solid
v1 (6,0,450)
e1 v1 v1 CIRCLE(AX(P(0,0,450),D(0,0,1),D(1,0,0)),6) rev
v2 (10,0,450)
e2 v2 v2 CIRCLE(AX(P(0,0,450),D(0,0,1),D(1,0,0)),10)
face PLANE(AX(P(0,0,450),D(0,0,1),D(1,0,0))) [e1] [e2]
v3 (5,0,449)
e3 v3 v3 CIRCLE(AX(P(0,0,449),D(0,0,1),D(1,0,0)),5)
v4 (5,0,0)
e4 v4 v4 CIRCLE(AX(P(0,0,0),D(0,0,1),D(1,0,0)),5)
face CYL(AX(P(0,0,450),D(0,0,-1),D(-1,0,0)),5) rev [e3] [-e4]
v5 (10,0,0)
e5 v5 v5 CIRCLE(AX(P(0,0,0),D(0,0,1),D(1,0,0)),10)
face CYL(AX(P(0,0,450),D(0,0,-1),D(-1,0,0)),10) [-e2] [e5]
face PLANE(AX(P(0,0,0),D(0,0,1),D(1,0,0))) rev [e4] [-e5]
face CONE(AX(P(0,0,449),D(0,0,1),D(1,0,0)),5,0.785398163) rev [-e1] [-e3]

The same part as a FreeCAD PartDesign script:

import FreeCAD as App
import Part
import Sketcher


def edges_at(feature, points):
    """Names of the edges that pass closest to the given points."""
    edges = feature.Shape.Edges
    near = lambda p: min(range(len(edges)), key=lambda i: edges[i].distToShape(Part.Vertex(*p))[0])
    return sorted({f"Edge{near(p) + 1}" for p in points})

doc = App.newDocument("Part")
body = doc.addObject("PartDesign::Body", "Body")

# Sketch on XY plane
sketch1 = body.newObject("Sketcher::SketchObject", "Sketch")
sketch1.AttachmentSupport = (doc.getObject("XY_Plane"), [""])
sketch1.MapMode = "FlatFace"
sketch1.addGeometry([
    Part.Circle(App.Vector(0, 0, 0), App.Vector(0, 0, 1), 10),
    Part.Circle(App.Vector(0, 0, 0), App.Vector(0, 0, 1), 5),
], False)
sketch1.addConstraint([
    Sketcher.Constraint("Coincident", 0, 3, -1, 1),
    Sketcher.Constraint("Coincident", 1, 3, -1, 1),
    Sketcher.Constraint("Diameter", 0, 20.0),
    Sketcher.Constraint("Diameter", 1, 10.0),
])
pad1 = body.newObject("PartDesign::Pad", "Pad")
pad1.Profile = sketch1
pad1.Length = 450
doc.recompute()

chamfer = body.newObject("PartDesign::Chamfer", "Chamfer")
chamfer.Base = (pad1, edges_at(pad1, [(-5, 0, 450)]))
chamfer.Size = 1

doc.recompute()
